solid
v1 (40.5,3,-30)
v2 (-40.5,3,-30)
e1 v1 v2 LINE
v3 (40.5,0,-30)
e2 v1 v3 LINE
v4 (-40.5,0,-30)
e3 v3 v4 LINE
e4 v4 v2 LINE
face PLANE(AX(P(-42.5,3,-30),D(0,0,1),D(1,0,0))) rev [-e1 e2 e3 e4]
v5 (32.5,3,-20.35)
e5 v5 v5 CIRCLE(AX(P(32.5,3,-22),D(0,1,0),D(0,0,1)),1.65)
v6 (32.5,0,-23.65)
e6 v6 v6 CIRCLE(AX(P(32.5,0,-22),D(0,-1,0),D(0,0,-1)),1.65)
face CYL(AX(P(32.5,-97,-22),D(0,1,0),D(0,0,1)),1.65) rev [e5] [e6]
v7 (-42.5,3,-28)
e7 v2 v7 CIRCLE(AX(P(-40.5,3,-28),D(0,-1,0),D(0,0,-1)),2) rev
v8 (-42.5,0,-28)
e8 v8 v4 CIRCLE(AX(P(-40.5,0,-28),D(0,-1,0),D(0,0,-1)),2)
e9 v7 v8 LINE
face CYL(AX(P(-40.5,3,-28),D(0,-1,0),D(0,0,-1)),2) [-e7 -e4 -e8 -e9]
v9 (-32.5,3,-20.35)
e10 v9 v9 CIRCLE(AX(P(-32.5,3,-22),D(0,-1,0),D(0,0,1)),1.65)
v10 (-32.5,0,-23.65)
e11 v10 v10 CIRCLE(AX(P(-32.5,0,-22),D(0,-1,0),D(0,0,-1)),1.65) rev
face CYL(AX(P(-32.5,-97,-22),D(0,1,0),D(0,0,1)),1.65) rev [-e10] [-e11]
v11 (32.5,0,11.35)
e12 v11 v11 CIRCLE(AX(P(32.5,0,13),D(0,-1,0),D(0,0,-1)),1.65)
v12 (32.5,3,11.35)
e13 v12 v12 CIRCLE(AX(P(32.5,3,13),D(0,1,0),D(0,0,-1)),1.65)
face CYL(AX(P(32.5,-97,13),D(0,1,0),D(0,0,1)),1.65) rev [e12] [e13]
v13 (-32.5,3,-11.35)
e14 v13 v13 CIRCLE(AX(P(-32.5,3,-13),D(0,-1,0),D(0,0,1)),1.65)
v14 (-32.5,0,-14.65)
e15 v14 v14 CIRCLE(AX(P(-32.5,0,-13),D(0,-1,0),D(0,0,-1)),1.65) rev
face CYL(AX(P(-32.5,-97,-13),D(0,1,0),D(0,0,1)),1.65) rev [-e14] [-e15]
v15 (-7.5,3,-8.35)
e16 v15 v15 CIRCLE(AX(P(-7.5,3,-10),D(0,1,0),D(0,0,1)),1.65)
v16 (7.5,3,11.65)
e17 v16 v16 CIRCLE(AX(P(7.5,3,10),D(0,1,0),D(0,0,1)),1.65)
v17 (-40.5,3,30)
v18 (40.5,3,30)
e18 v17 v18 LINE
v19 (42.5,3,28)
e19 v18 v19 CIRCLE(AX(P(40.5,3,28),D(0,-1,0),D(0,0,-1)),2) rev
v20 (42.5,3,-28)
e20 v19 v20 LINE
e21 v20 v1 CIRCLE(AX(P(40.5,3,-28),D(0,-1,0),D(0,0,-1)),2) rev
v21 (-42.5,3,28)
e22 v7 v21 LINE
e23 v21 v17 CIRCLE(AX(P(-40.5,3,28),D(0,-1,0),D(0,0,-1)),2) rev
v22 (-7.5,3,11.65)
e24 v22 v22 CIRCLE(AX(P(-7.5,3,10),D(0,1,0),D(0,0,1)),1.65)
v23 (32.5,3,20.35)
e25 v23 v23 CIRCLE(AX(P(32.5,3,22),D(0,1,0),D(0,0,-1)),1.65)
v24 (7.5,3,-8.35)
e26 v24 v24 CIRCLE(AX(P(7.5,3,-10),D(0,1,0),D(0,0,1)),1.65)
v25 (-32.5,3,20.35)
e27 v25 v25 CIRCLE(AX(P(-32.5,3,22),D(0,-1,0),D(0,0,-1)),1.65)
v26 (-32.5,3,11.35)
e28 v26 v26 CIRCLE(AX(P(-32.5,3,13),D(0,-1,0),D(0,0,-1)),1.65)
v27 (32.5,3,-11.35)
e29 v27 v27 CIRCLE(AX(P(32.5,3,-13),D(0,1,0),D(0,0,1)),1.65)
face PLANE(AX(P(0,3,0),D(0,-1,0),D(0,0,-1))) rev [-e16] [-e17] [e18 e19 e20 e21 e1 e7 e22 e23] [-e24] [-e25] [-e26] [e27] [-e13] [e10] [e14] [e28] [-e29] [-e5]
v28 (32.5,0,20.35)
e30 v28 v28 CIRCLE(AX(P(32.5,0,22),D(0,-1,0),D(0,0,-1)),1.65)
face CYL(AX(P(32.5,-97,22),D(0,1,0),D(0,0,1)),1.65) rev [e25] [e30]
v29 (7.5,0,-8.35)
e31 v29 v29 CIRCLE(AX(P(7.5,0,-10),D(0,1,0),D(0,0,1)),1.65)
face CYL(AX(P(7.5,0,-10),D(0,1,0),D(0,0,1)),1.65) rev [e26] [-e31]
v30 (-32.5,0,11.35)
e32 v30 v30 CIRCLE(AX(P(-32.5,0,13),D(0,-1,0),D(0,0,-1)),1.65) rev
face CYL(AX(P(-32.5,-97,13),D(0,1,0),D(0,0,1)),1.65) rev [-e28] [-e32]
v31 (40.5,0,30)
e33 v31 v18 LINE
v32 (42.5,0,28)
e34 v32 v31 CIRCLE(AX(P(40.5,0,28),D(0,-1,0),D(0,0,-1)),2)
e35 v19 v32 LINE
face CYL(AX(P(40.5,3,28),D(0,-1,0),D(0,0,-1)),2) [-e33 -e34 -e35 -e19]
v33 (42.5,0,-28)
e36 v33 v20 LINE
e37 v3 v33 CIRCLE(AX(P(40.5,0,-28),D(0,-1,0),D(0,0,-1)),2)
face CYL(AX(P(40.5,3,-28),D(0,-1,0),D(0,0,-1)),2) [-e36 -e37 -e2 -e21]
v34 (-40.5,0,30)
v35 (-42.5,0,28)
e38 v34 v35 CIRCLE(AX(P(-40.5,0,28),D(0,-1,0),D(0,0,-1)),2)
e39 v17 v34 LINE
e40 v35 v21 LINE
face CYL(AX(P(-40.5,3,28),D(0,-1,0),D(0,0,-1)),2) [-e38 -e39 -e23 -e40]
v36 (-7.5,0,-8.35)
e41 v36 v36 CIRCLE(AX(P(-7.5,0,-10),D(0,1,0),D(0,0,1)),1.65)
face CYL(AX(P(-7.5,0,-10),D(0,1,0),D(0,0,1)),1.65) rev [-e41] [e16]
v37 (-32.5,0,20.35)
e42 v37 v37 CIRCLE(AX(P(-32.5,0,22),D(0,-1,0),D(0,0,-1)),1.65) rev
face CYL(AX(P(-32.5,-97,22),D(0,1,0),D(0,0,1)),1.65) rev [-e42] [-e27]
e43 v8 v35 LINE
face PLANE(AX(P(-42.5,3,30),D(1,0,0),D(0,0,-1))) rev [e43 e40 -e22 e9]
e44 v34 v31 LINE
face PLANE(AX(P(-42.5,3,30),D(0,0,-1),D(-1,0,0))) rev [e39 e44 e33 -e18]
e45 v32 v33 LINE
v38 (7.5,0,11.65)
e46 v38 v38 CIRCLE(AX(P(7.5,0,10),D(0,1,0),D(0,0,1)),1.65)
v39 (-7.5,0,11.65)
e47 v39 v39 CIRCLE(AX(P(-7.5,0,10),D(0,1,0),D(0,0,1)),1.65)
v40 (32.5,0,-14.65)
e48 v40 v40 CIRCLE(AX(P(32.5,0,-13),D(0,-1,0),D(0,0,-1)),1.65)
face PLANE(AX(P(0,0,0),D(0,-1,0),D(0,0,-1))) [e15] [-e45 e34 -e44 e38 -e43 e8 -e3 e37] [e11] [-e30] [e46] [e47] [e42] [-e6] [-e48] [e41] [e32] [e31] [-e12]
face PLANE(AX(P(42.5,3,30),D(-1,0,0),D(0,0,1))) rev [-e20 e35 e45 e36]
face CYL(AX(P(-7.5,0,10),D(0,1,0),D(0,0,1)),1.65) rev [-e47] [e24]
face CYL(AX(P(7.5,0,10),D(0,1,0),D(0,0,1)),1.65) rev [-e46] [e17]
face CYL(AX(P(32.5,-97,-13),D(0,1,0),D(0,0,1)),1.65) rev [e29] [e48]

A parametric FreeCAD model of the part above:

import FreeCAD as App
import Part
import Sketcher

V = App.Vector


def edges_at(feature, points):
    """Names of the edges that pass closest to the given points."""
    edges = feature.Shape.Edges
    near = lambda p: min(range(len(edges)), key=lambda i: edges[i].distToShape(Part.Vertex(*p))[0])
    return sorted({f"Edge{near(p) + 1}" for p in points})


def add_polygon(sketch, points):
    """Adds a closed chain of lines whose ends are joined by coincident constraints."""
    first, n = sketch.GeometryCount, len(points)
    for a, b in zip(points, points[1:] + points[:1]):
        sketch.addGeometry(Part.LineSegment(App.Vector(*a, 0), App.Vector(*b, 0)), False)
    for i in range(n):
        sketch.addConstraint(Sketcher.Constraint("Coincident", first + i, 2, first + (i + 1) % n, 1))

doc = App.newDocument("Part")
body = doc.addObject("PartDesign::Body", "Body")

sketch1 = doc.addObject("Sketcher::SketchObject", "Sketch")
body.addObject(sketch1)
sketch1.AttachmentSupport = (doc.XZ_Plane, [""])
sketch1.MapMode = "FlatFace"
add_polygon(sketch1, [(-42, -30), (-42, 30), (42, 30), (42, -30)])
sketch1.addConstraint([
    Sketcher.Constraint("Vertical", 0),
    Sketcher.Constraint("Horizontal", 1),
    Sketcher.Constraint("Vertical", 2),
    Sketcher.Constraint("Horizontal", 3),
    Sketcher.Constraint("Symmetric", 0, 2, 2, 2, -1, 1),
    Sketcher.Constraint("DistanceX", 1, 1, 1, 2, 85.0),
    Sketcher.Constraint("DistanceY", 0, 1, 0, 2, 60.0),
])
pad1 = doc.addObject("PartDesign::Pad", "Pad")
body.addObject(pad1)
pad1.Profile = sketch1
pad1.Length = 3
pad1.Reversed = True

sketch2 = doc.addObject("Sketcher::SketchObject", "Sketch001")
body.addObject(sketch2)
sketch2.AttachmentSupport = (doc.XZ_Plane, [""])
sketch2.MapMode = "FlatFace"
sketch2.AttachmentOffset = App.Placement(V(0, 0, -3), App.Rotation())
sketch2.addGeometry([
    Part.Circle(V(7.5, -10, 0), V(0, 0, 1), 1.6),
    Part.Circle(V(-7.5, -10, 0), V(0, 0, 1), 1.6),
    Part.Circle(V(-7.5, 10, 0), V(0, 0, 1), 1.6),
    Part.Circle(V(7.5, 10, 0), V(0, 0, 1), 1.6),
], False)
sketch2.addConstraint([
    Sketcher.Constraint("Equal", 0, 1),
    Sketcher.Constraint("Equal", 1, 2),
    Sketcher.Constraint("Equal", 2, 3),
    Sketcher.Constraint("Symmetric", 0, 3, 2, 3, -1, 1),
    Sketcher.Constraint("Symmetric", 1, 3, 3, 3, -1, 1),
    Sketcher.Constraint("Symmetric", 0, 3, 1, 3, -2),
    Sketcher.Constraint("Diameter", 0, 3.3),
    Sketcher.Constraint("DistanceY", 0, 3, -1, 1, 10.0),
    Sketcher.Constraint("DistanceX", 1, 3, 0, 3, 15.0),
])
pocket1 = doc.addObject("PartDesign::Pocket", "Pocket")
body.addObject(pocket1)
pocket1.Profile = sketch2
pocket1.Length = 3
pocket1.Reversed = True

sketch3 = doc.addObject("Sketcher::SketchObject", "Sketch002")
body.addObject(sketch3)
sketch3.AttachmentSupport = (doc.XZ_Plane, [""])
sketch3.MapMode = "FlatFace"
sketch3.AttachmentOffset = App.Placement(V(0, 0, -3), App.Rotation())
sketch3.addGeometry([
    Part.Circle(V(32.5, -13, 0), V(0, 0, 1), 1.6),
    Part.Circle(V(32.5, -22, 0), V(0, 0, 1), 1.6),
    Part.Circle(V(32.5, 13, 0), V(0, 0, 1), 1.6),
    Part.Circle(V(32.5, 22, 0), V(0, 0, 1), 1.6),
], False)
sketch3.addConstraint([
    Sketcher.Constraint("Equal", 0, 1),
    Sketcher.Constraint("Equal", 1, 2),
    Sketcher.Constraint("Equal", 2, 3),
    Sketcher.Constraint("Symmetric", 0, 3, 2, 3, -1),
    Sketcher.Constraint("Symmetric", 1, 3, 3, 3, -1),
    Sketcher.Constraint("Vertical", 0, 3, 1, 3),
    Sketcher.Constraint("Diameter", 0, 3.3),
    Sketcher.Constraint("DistanceY", 0, 3, -1, 1, 13.0),
    Sketcher.Constraint("DistanceY", 1, 3, -1, 1, 22.0),
    Sketcher.Constraint("DistanceX", -1, 1, 0, 3, 32.5),
])
pocket2 = doc.addObject("PartDesign::Pocket", "Pocket001")
body.addObject(pocket2)
pocket2.Profile = sketch3
pocket2.Length = 100
pocket2.Reversed = True
doc.recompute()

mirrored = doc.addObject("PartDesign::Mirrored", "Mirrored")
body.addObject(mirrored)
mirrored.Originals = [pocket2]
mirrored.MirrorPlane = (doc.YZ_Plane, [""])
body.Tip = mirrored
doc.recompute()

fillet = doc.addObject("PartDesign::Fillet", "Fillet")
body.addObject(fillet)
fillet.Base = (mirrored, edges_at(mirrored, [
    (42.5, 1.5, 30),
    (-42.5, 1.5, 30),
    (-42.5, 1.5, -30),
    (42.5, 1.5, -30),
]))
fillet.Radius = 2

doc.recompute()
